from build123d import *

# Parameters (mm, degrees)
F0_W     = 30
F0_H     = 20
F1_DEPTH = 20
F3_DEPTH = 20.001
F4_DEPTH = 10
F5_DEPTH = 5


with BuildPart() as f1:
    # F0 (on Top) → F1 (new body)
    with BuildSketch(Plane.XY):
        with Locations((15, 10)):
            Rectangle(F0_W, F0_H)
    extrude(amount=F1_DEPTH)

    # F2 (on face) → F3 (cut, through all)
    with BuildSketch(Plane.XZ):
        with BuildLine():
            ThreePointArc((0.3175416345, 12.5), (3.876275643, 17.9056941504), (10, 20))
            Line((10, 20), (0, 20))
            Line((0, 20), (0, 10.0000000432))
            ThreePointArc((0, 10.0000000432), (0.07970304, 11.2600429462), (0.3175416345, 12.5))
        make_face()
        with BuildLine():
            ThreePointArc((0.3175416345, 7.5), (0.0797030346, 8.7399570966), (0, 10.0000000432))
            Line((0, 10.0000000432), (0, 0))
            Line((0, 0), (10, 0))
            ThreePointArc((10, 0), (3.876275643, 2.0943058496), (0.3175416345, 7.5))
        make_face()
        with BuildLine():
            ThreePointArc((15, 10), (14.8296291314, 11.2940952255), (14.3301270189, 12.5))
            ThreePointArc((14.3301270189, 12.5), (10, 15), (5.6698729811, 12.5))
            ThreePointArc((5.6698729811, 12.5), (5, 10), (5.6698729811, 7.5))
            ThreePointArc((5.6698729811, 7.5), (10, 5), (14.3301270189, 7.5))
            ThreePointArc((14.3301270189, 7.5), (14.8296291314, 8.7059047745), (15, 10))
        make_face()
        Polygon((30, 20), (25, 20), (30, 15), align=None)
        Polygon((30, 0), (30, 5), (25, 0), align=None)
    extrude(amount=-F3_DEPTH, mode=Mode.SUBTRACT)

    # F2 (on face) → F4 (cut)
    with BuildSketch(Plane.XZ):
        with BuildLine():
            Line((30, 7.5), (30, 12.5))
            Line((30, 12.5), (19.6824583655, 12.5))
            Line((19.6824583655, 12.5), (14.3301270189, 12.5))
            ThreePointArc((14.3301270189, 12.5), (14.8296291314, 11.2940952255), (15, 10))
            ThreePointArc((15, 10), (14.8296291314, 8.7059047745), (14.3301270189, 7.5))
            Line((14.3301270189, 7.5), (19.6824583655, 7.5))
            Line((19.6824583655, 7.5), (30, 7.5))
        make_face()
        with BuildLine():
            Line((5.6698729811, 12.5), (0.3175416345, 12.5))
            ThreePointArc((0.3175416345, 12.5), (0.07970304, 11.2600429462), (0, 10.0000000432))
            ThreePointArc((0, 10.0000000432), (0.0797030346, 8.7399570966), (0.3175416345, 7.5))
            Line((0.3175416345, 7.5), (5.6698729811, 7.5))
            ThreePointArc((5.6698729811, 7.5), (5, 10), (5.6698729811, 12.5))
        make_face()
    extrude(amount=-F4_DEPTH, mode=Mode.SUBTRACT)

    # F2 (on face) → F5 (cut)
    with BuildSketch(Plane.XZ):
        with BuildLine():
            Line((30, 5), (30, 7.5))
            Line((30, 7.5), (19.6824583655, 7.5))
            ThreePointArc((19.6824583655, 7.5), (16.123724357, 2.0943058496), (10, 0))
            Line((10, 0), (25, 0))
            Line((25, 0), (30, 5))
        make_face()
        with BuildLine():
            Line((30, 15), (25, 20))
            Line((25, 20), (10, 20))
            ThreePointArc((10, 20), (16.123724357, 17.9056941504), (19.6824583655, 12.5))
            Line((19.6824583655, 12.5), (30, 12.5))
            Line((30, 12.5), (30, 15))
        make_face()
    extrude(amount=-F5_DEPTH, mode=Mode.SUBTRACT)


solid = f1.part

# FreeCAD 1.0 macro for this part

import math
import FreeCAD as App
import Part
import Sketcher
from FreeCAD import Vector


def add_polygon(sketch, points):
    """Adds a closed chain of lines whose ends are joined by coincident constraints."""
    first, n = sketch.GeometryCount, len(points)
    for a, b in zip(points, points[1:] + points[:1]):
        sketch.addGeometry(Part.LineSegment(App.Vector(*a, 0), App.Vector(*b, 0)), False)
    for i in range(n):
        sketch.addConstraint(Sketcher.Constraint("Coincident", first + i, 2, first + (i + 1) % n, 1))

doc = App.newDocument("Part")
body = doc.addObject("PartDesign::Body", "Body")

sketch1 = doc.addObject("Sketcher::SketchObject", "Sketch")
body.addObject(sketch1)
sketch1.AttachmentSupport = (doc.XY_Plane, [""])
sketch1.MapMode = "FlatFace"
add_polygon(sketch1, [(0, 20), (0, 0), (30, 0), (30, 20)])
sketch1.addConstraint([
    Sketcher.Constraint("Vertical", 0),
    Sketcher.Constraint("Horizontal", 1),
    Sketcher.Constraint("Vertical", 2),
    Sketcher.Constraint("Horizontal", 3),
    Sketcher.Constraint("Coincident", 0, 2, -1, 1),
    Sketcher.Constraint("DistanceX", 1, 1, 1, 2, 30.0),
    Sketcher.Constraint("DistanceY", 0, 2, 0, 1, 20.0),
])
pad1 = doc.addObject("PartDesign::Pad", "Pad")
body.addObject(pad1)
pad1.Profile = sketch1
pad1.Length = 20

sketch2 = doc.addObject("Sketcher::SketchObject", "Sketch001")
body.addObject(sketch2)
sketch2.AttachmentSupport = (doc.XZ_Plane, [""])
sketch2.MapMode = "FlatFace"
sketch2.addGeometry(Part.ArcOfCircle(Part.Circle(Vector(10, 10, 0), Vector(0, 0, 1), 10), math.radians(90), math.radians(166)), False)
sketch2.addGeometry(Part.LineSegment(Vector(10, 20, 0), Vector(0, 20, 0)), False)
sketch2.addGeometry(Part.LineSegment(Vector(0, 20, 0), Vector(0, 10, 0)), False)
sketch2.addGeometry(Part.ArcOfCircle(Part.Circle(Vector(10, 10, 0), Vector(0, 0, 1), 10), math.radians(165.52), math.radians(180)), False)
sketch2.addGeometry(Part.ArcOfCircle(Part.Circle(Vector(10, 10, 0), Vector(0, 0, 1), 10), math.radians(180), math.radians(194.48)), False)
sketch2.addGeometry(Part.LineSegment(Vector(0, 10, 0), Vector(0, 0, 0)), False)
sketch2.addGeometry(Part.LineSegment(Vector(0, 0, 0), Vector(10, 0, 0)), False)
sketch2.addGeometry(Part.ArcOfCircle(Part.Circle(Vector(10, 10, 0), Vector(0, 0, 1), 10), math.radians(-166), math.radians(-90)), False)
sketch2.addGeometry(Part.ArcOfCircle(Part.Circle(Vector(10, 10, 0), Vector(0, 0, 1), 5), math.radians(0), math.radians(30)), False)
sketch2.addGeometry(Part.ArcOfCircle(Part.Circle(Vector(10, 10, 0), Vector(0, 0, 1), 5), math.radians(30), math.radians(150)), False)
sketch2.addGeometry(Part.ArcOfCircle(Part.Circle(Vector(10, 10, 0), Vector(0, 0, 1), 5), math.radians(150), math.radians(210)), False)
sketch2.addGeometry(Part.ArcOfCircle(Part.Circle(Vector(10, 10, 0), Vector(0, 0, 1), 5), math.radians(-150), math.radians(-30)), False)
sketch2.addGeometry(Part.ArcOfCircle(Part.Circle(Vector(10, 10, 0), Vector(0, 0, 1), 5), math.radians(-30), math.radians(0)), False)
add_polygon(sketch2, [(30, 20), (25, 20), (30, 15)])
add_polygon(sketch2, [(30, 0), (30, 5), (25, 0)])
sketch2.addConstraint([
    Sketcher.Constraint("Tangent", 0, 1, 1, 1),
    Sketcher.Constraint("Coincident", 1, 2, 2, 1),
    Sketcher.Constraint("Tangent", 2, 2, 3, 2),
    Sketcher.Constraint("Tangent", 3, 1, 0, 2),
    Sketcher.Constraint("Tangent", 4, 1, 5, 1),
    Sketcher.Constraint("Coincident", 5, 2, 6, 1),
    Sketcher.Constraint("Tangent", 6, 2, 7, 2),
    Sketcher.Constraint("Tangent", 7, 1, 4, 2),
    Sketcher.Constraint("Tangent", 8, 2, 9, 1),
    Sketcher.Constraint("Tangent", 9, 2, 10, 1),
    Sketcher.Constraint("Tangent", 10, 2, 11, 1),
    Sketcher.Constraint("Tangent", 11, 2, 12, 1),
    Sketcher.Constraint("Tangent", 12, 2, 8, 1),
    Sketcher.Constraint("Horizontal", 1),
    Sketcher.Constraint("Vertical", 2),
    Sketcher.Constraint("Vertical", 5),
    Sketcher.Constraint("Horizontal", 6),
    Sketcher.Constraint("Horizontal", 13),
    Sketcher.Constraint("Vertical", 15),
    Sketcher.Constraint("Vertical", 16),
    Sketcher.Constraint("Horizontal", 18),
    Sketcher.Constraint("Coincident", 5, 2, -1, 1),
    Sketcher.Constraint("Coincident", 4, 3, 0, 3),
    Sketcher.Constraint("Coincident", 8, 3, 0, 3),
    Sketcher.Constraint("Coincident", 10, 3, 0, 3),
    Sketcher.Constraint("Coincident", 4, 1, 2, 2),
    Sketcher.Constraint("Equal", 4, 7),
    Sketcher.Constraint("PointOnObject", 17, 2, -1),
    Sketcher.Constraint("Perpendicular", 14, 17),
    Sketcher.Constraint("Horizontal", 3, 1, 8, 2),
    Sketcher.Constraint("Horizontal", 8, 2, 9, 2),
    Sketcher.Constraint("Horizontal", 7, 1, 10, 2),
    Sketcher.Constraint("Horizontal", 10, 2, 11, 2),
    Sketcher.Constraint("Horizontal", 4, 1, 12, 2),
    Sketcher.Constraint("Horizontal", 1, 2, 13, 2),
    Sketcher.Constraint("Vertical", 3, 1, 7, 1),
    Sketcher.Constraint("Vertical", 15, 2, 16, 2),
    Sketcher.Constraint("Vertical", 13, 2, 17, 2),
    Sketcher.Constraint("Equal", 18, 15),
    Sketcher.Constraint("Radius", 0, 10.0),
    Sketcher.Constraint("Radius", 8, 5.0),
    Sketcher.Constraint("DistanceX", 13, 2, 13, 1, 5.0),
    Sketcher.Constraint("DistanceX", -1, 1, 13, 2, 25.0),
    Sketcher.Constraint("DistanceY", 7, 1, 3, 1, 5.0),
])
pocket1 = doc.addObject("PartDesign::Pocket", "Pocket")
body.addObject(pocket1)
pocket1.Profile = sketch2
pocket1.Type = "ThroughAll"

sketch3 = doc.addObject("Sketcher::SketchObject", "Sketch002")
body.addObject(sketch3)
sketch3.AttachmentSupport = (doc.XZ_Plane, [""])
sketch3.MapMode = "FlatFace"
sketch3.addGeometry([
    Part.LineSegment(Vector(30, 7.5, 0), Vector(30, 12.5, 0)),
    Part.LineSegment(Vector(30, 12.5, 0), Vector(14.3, 12.5, 0)),
    Part.ArcOfCircle(Part.Circle(Vector(10, 10, 0), Vector(0, 0, 1), 5), math.radians(0), math.radians(30)),
    Part.ArcOfCircle(Part.Circle(Vector(10, 10, 0), Vector(0, 0, 1), 5), math.radians(-30), math.radians(0)),
    Part.LineSegment(Vector(14.3, 7.5, 0), Vector(30, 7.5, 0)),
    Part.LineSegment(Vector(5.7, 12.5, 0), Vector(0.3, 12.5, 0)),
    Part.ArcOfCircle(Part.Circle(Vector(10, 10, 0), Vector(0, 0, 1), 10), math.radians(165.52), math.radians(180)),
    Part.ArcOfCircle(Part.Circle(Vector(10, 10, 0), Vector(0, 0, 1), 10), math.radians(180), math.radians(194.48)),
    Part.LineSegment(Vector(0.3, 7.5, 0), Vector(5.7, 7.5, 0)),
    Part.ArcOfCircle(Part.Circle(Vector(10, 10, 0), Vector(0, 0, 1), 5), math.radians(150), math.radians(210)),
], False)
sketch3.addConstraint([
    Sketcher.Constraint("Coincident", 0, 2, 1, 1),
    Sketcher.Constraint("Coincident", 1, 2, 2, 2),
    Sketcher.Constraint("Tangent", 2, 1, 3, 2),
    Sketcher.Constraint("Coincident", 3, 1, 4, 1),
    Sketcher.Constraint("Coincident", 4, 2, 0, 1),
    Sketcher.Constraint("Coincident", 5, 2, 6, 1),
    Sketcher.Constraint("Tangent", 6, 2, 7, 1),
    Sketcher.Constraint("Coincident", 7, 2, 8, 1),
    Sketcher.Constraint("Coincident", 8, 2, 9, 2),
    Sketcher.Constraint("Coincident", 9, 1, 5, 1),
    Sketcher.Constraint("Vertical", 0),
    Sketcher.Constraint("Horizontal", 1),
    Sketcher.Constraint("Horizontal", 4),
    Sketcher.Constraint("Horizontal", 5),
    Sketcher.Constraint("Horizontal", 8),
    Sketcher.Constraint("Coincident", 6, 3, 2, 3),
    Sketcher.Constraint("Coincident", 9, 3, 2, 3),
    Sketcher.Constraint("Equal", 2, 3),
    Sketcher.Constraint("Equal", 6, 7),
    Sketcher.Constraint("Equal", 3, 9),
    Sketcher.Constraint("PointOnObject", 6, 2, -2),
    Sketcher.Constraint("Horizontal", 9, 3, 2, 1),
    Sketcher.Constraint("Horizontal", 1, 2, 5, 2),
    Sketcher.Constraint("Horizontal", 2, 1, 6, 2),
    Sketcher.Constraint("Horizontal", 4, 2, 7, 2),
    Sketcher.Constraint("Vertical", 1, 2, 3, 1),
    Sketcher.Constraint("Radius", 2, 5.0),
    Sketcher.Constraint("Radius", 6, 10.0),
    Sketcher.Constraint("DistanceY", 0, 1, 0, 2, 5.0),
    Sketcher.Constraint("DistanceY", -1, 1, 2, 3, 10.0),
    Sketcher.Constraint("DistanceX", -1, 1, 0, 2, 30.0),
])
pocket2 = doc.addObject("PartDesign::Pocket", "Pocket001")
body.addObject(pocket2)
pocket2.Profile = sketch3
pocket2.Length = 10

sketch4 = doc.addObject("Sketcher::SketchObject", "Sketch003")
body.addObject(sketch4)
sketch4.AttachmentSupport = (doc.XZ_Plane, [""])
sketch4.MapMode = "FlatFace"
sketch4.addGeometry([
    Part.LineSegment(Vector(30, 5, 0), Vector(30, 7.5, 0)),
    Part.LineSegment(Vector(30, 7.5, 0), Vector(19.7, 7.5, 0)),
    Part.ArcOfCircle(Part.Circle(Vector(10, 10, 0), Vector(0, 0, 1), 10), math.radians(-90), math.radians(-14)),
    Part.LineSegment(Vector(10, 0, 0), Vector(25, 0, 0)),
    Part.LineSegment(Vector(25, 0, 0), Vector(30, 5, 0)),
    Part.LineSegment(Vector(30, 15, 0), Vector(25, 20, 0)),
    Part.LineSegment(Vector(25, 20, 0), Vector(10, 20, 0)),
    Part.ArcOfCircle(Part.Circle(Vector(10, 10, 0), Vector(0, 0, 1), 10), math.radians(14), math.radians(90)),
    Part.LineSegment(Vector(19.7, 12.5, 0), Vector(30, 12.5, 0)),
    Part.LineSegment(Vector(30, 12.5, 0), Vector(30, 15, 0)),
], False)
sketch4.addConstraint([
    Sketcher.Constraint("Coincident", 0, 2, 1, 1),
    Sketcher.Constraint("Coincident", 1, 2, 2, 2),
    Sketcher.Constraint("Tangent", 2, 1, 3, 1),
    Sketcher.Constraint("Coincident", 3, 2, 4, 1),
    Sketcher.Constraint("Coincident", 4, 2, 0, 1),
    Sketcher.Constraint("Coincident", 5, 2, 6, 1),
    Sketcher.Constraint("Tangent", 6, 2, 7, 2),
    Sketcher.Constraint("Coincident", 7, 1, 8, 1),
    Sketcher.Constraint("Coincident", 8, 2, 9, 1),
    Sketcher.Constraint("Coincident", 9, 2, 5, 1),
    Sketcher.Constraint("Vertical", 0),
    Sketcher.Constraint("Horizontal", 1),
    Sketcher.Constraint("Horizontal", 3),
    Sketcher.Constraint("Horizontal", 6),
    Sketcher.Constraint("Horizontal", 8),
    Sketcher.Constraint("Vertical", 9),
    Sketcher.Constraint("Coincident", 7, 3, 2, 3),
    Sketcher.Constraint("Equal", 2, 7),
    Sketcher.Constraint("PointOnObject", 2, 1, -1),
    Sketcher.Constraint("Perpendicular", 4, 5),
    Sketcher.Constraint("Vertical", 3, 2, 5, 2),
    Sketcher.Constraint("Vertical", 1, 2, 7, 1),
    Sketcher.Constraint("Vertical", 4, 2, 8, 2),
    Sketcher.Constraint("Equal", 0, 9),
    Sketcher.Constraint("Radius", 2, 10.0),
    Sketcher.Constraint("DistanceX", 3, 1, 3, 2, 15.0),
    Sketcher.Constraint("DistanceY", 0, 1, 0, 2, 2.5),
    Sketcher.Constraint("DistanceX", -1, 1, 2, 3, 10.0),
    Sketcher.Constraint("DistanceX", -1, 1, 0, 2, 30.0),
])
pocket3 = doc.addObject("PartDesign::Pocket", "Pocket002")
body.addObject(pocket3)
pocket3.Profile = sketch4
pocket3.Length = 5

doc.recompute()
